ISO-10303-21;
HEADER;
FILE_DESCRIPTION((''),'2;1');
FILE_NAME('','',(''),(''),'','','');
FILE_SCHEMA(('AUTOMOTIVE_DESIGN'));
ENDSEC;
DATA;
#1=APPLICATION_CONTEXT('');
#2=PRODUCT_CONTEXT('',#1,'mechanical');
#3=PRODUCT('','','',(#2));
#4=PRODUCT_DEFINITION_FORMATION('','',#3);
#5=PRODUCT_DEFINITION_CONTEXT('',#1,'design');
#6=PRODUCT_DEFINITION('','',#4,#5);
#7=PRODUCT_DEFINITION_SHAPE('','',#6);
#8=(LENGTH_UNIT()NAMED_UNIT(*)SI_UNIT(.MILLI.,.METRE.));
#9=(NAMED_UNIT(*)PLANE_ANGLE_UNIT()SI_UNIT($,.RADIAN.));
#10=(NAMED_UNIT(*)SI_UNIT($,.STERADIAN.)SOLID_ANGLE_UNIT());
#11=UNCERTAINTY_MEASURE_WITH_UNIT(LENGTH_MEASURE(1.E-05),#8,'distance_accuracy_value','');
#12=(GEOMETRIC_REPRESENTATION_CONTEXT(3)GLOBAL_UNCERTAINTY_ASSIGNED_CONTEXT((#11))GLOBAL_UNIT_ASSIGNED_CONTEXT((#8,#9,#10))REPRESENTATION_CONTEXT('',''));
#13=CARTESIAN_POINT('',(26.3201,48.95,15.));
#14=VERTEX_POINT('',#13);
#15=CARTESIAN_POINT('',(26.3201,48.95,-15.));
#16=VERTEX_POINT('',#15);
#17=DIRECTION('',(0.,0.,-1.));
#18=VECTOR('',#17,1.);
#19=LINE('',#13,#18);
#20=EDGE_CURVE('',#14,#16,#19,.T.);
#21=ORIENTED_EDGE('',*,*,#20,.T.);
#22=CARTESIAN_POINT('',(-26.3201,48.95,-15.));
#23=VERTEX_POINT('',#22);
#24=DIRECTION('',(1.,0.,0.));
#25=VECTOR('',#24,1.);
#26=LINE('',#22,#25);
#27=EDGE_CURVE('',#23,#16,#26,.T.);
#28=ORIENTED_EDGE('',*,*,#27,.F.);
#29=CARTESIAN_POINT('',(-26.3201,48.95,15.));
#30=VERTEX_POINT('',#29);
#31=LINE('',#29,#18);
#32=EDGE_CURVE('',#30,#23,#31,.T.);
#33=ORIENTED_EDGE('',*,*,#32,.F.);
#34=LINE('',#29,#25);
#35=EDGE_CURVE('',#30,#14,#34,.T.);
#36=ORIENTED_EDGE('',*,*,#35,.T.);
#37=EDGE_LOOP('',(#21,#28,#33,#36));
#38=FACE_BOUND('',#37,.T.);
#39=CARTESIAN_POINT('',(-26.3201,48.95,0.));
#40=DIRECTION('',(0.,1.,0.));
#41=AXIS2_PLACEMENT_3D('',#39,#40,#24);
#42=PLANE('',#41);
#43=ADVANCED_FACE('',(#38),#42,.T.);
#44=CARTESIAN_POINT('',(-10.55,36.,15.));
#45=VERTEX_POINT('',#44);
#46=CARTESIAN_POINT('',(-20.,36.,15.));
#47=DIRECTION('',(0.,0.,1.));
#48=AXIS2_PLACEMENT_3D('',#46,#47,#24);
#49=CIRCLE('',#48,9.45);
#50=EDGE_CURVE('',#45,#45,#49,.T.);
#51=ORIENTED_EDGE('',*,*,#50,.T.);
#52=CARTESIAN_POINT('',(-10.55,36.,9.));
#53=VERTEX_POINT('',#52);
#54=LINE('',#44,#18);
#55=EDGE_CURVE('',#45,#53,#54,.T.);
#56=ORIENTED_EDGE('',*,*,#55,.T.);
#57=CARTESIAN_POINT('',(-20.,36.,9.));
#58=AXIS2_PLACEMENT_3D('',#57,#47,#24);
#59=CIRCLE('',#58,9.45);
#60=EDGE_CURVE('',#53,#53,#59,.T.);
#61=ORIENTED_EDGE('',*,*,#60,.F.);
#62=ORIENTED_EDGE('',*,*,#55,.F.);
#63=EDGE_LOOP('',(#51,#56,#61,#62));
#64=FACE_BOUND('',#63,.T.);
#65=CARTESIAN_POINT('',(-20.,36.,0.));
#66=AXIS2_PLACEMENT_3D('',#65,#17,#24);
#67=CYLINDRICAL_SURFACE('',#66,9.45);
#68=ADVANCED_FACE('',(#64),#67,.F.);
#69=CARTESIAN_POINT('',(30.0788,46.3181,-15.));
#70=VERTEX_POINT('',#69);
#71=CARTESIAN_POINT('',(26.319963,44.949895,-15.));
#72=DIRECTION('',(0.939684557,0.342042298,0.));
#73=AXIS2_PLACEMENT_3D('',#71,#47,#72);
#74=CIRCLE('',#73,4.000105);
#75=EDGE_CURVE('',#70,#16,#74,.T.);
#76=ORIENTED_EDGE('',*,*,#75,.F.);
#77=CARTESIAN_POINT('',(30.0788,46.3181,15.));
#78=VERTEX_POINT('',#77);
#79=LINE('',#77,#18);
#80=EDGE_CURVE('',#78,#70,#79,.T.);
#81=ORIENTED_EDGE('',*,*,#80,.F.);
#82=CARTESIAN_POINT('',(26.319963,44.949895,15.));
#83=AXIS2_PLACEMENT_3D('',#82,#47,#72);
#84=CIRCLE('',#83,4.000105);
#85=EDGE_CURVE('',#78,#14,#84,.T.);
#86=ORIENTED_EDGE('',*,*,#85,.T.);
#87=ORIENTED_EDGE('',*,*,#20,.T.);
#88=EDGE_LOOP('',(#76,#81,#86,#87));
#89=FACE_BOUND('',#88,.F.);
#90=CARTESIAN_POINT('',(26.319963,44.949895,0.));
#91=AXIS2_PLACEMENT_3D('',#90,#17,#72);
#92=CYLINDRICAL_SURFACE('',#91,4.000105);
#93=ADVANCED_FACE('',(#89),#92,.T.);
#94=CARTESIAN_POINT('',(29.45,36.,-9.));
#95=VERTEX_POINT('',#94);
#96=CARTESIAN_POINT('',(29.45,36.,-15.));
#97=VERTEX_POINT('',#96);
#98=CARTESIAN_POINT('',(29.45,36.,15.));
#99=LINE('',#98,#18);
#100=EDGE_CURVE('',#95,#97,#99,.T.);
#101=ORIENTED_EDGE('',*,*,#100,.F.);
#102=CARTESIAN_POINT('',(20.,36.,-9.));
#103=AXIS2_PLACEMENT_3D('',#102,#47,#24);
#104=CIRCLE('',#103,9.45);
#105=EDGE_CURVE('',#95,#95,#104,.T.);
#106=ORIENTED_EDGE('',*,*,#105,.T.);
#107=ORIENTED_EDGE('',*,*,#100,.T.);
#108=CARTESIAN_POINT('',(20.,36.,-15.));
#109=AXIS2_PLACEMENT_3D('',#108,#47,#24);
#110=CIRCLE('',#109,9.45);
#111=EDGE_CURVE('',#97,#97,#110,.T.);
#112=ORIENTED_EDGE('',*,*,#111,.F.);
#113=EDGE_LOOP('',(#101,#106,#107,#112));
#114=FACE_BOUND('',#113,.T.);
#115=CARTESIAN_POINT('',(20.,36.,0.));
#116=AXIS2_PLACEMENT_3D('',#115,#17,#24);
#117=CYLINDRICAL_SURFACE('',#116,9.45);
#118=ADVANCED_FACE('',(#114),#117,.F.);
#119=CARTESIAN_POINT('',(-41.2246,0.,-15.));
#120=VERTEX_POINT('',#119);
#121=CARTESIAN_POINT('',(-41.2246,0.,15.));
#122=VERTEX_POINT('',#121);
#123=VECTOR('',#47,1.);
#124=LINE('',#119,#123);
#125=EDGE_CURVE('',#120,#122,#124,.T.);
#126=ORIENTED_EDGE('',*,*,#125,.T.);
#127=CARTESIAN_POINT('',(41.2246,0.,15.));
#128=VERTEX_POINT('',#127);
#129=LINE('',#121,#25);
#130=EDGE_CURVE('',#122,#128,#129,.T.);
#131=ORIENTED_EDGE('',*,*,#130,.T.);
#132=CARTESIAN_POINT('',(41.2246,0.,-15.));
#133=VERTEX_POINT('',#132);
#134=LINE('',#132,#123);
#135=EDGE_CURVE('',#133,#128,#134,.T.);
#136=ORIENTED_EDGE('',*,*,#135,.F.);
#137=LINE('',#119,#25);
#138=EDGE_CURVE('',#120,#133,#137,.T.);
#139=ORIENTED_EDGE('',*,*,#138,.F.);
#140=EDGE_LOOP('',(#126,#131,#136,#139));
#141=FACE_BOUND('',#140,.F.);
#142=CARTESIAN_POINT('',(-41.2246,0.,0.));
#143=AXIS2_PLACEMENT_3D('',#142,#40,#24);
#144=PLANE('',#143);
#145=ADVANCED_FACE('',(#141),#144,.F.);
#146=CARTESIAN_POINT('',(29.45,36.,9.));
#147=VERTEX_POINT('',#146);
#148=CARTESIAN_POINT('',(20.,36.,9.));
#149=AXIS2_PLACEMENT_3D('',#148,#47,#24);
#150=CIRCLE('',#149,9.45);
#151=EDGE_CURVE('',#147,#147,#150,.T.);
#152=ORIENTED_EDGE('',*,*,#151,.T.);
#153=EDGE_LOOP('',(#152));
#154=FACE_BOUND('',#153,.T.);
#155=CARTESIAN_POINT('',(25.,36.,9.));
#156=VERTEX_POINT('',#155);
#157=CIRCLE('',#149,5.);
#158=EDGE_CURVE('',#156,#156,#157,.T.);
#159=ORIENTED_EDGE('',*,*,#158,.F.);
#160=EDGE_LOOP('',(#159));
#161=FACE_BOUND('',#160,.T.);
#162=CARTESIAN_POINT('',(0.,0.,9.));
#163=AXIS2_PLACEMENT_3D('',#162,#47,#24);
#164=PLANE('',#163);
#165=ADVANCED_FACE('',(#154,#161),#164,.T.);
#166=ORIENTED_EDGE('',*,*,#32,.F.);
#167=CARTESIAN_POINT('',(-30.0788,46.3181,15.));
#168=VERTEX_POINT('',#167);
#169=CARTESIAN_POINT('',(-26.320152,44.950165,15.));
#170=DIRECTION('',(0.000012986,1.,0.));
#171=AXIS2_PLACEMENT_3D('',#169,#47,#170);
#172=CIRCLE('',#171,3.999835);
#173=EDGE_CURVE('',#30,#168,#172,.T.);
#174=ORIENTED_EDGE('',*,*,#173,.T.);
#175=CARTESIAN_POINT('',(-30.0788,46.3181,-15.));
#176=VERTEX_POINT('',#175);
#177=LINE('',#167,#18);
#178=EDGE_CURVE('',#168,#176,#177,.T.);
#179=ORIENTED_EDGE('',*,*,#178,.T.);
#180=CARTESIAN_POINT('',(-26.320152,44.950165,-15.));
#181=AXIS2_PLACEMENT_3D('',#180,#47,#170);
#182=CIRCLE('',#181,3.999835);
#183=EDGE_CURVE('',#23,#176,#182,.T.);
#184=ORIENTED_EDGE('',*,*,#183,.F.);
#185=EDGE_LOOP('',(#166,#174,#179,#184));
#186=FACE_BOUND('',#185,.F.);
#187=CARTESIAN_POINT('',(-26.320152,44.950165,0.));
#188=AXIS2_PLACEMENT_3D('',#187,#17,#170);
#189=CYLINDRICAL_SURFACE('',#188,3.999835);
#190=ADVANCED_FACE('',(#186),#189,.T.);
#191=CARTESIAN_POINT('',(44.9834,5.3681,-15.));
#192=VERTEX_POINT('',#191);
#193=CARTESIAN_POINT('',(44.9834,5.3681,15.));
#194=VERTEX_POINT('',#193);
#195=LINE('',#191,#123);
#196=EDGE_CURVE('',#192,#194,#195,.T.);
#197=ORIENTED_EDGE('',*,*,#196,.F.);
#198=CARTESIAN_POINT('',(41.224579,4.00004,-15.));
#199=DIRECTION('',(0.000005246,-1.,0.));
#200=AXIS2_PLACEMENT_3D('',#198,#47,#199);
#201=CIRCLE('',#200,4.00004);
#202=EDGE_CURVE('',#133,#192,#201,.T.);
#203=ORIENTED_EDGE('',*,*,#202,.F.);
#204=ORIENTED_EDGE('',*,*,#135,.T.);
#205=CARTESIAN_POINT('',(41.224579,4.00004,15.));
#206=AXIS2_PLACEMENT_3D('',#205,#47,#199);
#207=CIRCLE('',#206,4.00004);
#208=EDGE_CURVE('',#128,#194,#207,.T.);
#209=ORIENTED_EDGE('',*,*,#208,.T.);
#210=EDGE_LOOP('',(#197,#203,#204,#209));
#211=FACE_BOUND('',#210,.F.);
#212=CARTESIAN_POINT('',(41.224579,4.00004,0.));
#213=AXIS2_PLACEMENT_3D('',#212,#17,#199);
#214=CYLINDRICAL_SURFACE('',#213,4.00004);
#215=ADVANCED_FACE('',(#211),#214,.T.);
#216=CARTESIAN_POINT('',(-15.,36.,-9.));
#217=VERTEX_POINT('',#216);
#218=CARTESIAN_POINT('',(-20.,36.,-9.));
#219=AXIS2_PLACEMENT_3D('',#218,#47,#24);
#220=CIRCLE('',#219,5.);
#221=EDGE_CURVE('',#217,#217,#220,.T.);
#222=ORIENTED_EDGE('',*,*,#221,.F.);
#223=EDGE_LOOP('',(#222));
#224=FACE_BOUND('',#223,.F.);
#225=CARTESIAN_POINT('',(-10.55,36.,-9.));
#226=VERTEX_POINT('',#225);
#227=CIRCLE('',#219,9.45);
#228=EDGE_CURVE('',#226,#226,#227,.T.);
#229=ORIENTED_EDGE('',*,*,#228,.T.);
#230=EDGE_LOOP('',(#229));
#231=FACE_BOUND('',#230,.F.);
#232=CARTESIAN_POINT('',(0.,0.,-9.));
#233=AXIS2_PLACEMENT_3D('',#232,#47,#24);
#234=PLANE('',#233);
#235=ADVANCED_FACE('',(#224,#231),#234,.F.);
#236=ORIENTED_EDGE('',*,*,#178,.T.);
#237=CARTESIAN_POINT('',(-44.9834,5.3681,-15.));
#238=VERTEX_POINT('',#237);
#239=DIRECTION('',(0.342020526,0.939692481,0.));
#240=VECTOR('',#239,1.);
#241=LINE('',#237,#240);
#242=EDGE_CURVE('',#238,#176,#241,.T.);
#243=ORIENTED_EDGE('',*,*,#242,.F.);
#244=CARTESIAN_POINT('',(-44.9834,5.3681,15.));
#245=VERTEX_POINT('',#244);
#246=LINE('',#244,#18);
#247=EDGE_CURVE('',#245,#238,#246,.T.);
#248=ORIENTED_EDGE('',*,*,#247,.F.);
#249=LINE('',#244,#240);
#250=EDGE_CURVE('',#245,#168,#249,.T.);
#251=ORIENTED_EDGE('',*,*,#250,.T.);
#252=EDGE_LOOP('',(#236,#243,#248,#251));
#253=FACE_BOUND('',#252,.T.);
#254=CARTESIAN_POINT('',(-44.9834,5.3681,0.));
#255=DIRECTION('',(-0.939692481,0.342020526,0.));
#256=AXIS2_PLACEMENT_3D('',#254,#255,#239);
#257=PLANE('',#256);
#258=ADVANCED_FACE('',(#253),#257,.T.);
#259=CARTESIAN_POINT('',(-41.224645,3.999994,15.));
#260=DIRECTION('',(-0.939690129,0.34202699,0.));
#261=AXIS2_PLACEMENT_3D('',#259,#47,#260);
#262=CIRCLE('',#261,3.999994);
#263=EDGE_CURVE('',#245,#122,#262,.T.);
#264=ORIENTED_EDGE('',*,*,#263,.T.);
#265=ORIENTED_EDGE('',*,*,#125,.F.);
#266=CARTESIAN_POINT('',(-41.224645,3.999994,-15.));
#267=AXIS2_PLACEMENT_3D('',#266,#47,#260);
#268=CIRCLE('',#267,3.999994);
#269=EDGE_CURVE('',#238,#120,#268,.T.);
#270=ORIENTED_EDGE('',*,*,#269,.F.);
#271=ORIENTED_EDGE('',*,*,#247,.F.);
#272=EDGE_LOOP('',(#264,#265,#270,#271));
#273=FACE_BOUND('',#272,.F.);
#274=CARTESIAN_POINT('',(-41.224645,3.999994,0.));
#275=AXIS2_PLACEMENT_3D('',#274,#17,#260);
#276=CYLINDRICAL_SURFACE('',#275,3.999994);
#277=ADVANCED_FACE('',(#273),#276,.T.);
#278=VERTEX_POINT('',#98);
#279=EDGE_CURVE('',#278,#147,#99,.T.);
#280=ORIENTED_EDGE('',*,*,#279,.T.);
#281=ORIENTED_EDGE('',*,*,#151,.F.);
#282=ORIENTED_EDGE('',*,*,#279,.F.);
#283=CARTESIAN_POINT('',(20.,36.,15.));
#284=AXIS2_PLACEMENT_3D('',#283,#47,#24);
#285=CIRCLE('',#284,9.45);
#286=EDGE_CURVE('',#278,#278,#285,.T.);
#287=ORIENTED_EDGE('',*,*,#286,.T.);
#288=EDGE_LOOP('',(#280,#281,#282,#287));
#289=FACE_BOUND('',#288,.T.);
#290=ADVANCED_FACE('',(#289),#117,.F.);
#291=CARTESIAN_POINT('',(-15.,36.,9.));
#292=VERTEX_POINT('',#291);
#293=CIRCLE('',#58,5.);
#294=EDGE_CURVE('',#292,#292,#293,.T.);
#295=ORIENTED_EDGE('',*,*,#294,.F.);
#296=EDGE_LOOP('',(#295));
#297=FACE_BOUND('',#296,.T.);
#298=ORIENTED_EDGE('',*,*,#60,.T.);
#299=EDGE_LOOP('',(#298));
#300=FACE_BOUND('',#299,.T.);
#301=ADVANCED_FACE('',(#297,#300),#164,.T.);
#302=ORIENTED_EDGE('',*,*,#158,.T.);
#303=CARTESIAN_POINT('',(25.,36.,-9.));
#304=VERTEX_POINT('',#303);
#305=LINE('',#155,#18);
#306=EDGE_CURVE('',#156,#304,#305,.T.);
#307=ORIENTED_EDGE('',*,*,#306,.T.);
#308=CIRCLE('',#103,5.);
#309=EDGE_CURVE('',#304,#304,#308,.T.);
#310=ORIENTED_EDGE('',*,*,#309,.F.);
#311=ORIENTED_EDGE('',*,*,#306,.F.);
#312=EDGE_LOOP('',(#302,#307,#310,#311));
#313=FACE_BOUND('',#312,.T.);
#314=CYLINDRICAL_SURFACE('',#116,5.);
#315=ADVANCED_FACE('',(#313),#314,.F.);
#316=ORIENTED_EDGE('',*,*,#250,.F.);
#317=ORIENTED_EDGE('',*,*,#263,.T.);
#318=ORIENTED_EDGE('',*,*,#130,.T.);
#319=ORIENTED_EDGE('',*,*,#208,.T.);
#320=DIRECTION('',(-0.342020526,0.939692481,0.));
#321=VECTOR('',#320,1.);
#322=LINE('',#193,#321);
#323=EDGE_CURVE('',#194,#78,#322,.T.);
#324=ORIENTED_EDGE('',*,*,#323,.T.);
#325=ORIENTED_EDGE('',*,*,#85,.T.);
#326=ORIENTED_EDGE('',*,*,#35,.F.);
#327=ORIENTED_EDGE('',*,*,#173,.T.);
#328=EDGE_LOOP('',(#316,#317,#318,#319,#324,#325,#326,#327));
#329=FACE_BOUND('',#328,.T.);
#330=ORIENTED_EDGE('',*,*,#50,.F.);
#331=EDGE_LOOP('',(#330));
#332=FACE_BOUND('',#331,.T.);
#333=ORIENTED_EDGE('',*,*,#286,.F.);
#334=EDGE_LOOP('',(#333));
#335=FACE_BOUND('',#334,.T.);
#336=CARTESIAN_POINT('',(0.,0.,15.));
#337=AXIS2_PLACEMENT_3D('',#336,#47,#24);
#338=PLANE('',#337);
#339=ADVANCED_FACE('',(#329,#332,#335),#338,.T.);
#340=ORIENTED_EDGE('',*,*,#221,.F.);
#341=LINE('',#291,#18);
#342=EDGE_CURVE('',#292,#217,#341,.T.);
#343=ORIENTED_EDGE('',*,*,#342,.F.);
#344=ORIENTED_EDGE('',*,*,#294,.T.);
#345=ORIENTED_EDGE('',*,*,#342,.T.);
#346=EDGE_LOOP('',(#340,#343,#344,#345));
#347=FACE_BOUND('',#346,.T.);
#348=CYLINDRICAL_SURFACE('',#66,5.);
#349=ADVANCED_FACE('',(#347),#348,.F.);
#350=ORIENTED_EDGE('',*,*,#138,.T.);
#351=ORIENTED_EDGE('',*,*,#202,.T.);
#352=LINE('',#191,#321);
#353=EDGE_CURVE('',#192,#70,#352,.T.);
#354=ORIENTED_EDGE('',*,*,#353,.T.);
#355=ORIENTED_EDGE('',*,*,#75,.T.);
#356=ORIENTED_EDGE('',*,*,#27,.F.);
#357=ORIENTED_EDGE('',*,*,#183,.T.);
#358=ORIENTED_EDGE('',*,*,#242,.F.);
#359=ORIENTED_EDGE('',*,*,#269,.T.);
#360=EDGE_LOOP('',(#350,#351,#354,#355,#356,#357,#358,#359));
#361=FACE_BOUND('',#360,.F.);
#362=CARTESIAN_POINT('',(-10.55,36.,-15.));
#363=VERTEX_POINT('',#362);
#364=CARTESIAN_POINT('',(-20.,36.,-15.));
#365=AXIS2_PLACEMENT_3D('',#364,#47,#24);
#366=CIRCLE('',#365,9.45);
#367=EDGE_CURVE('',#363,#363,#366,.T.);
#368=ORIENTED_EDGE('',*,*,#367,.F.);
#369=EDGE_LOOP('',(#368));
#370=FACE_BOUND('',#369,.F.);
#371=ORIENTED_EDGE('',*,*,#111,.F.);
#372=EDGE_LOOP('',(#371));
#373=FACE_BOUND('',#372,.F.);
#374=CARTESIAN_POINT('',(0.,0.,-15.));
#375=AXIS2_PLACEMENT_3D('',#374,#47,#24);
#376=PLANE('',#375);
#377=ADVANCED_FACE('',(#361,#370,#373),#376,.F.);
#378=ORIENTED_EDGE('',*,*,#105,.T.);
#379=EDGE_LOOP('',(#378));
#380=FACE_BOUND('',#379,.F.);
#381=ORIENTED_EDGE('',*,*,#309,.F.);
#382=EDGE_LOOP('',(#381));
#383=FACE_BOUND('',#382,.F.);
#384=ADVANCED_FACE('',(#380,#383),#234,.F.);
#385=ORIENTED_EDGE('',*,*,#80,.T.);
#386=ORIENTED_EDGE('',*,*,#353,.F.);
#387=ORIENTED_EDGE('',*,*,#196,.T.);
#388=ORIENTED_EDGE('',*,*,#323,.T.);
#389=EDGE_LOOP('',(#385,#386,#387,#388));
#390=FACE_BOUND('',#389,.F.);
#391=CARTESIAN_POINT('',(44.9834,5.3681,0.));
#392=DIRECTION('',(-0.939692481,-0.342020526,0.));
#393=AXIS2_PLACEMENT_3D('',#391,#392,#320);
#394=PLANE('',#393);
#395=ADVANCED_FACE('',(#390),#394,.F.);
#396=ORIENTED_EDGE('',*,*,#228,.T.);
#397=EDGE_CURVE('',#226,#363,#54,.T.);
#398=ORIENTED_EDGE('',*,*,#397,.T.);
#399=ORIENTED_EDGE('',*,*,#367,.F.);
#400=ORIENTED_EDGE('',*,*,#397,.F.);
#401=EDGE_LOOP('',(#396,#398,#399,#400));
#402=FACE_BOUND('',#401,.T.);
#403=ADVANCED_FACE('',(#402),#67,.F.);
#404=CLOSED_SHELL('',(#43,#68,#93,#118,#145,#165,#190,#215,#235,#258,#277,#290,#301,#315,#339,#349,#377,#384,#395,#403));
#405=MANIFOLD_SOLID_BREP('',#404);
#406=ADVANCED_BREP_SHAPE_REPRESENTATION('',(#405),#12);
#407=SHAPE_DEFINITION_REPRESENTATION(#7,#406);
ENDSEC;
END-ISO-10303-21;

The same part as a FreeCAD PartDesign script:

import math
import FreeCAD as App
import Part
import Sketcher
from FreeCAD import Vector
Q = App.Units.Quantity

doc = App.newDocument("Part")
params = doc.addObject("Spreadsheet::Sheet", "Params")
for row, (alias, value) in enumerate([
    ("sketch1_radius", "4 mm"),
    ("sketch1_diameter", "18.9 mm"),
    ("pad1_length", "30 mm"),
    ("sketch2_diameter", "10 mm"),
    ("sketch2_diameter2", "18.9 mm"),
    ("pad2_length", "18 mm"),
], start=1):
    params.set(f"A{row}", alias)
    params.set(f"B{row}", "=" + value)
    params.setAlias(f"B{row}", alias)

body = doc.addObject("PartDesign::Body", "Body")

# Sketch on XY plane
sketch1 = doc.addObject("Sketcher::SketchObject", "Sketch")
body.addObject(sketch1)
sketch1.AttachmentSupport = (doc.XY_Plane, [""])
sketch1.MapMode = "FlatFace"
sketch1.addGeometry([
    Part.ArcOfCircle(Part.Circle(Vector(-41.2, 4, 0), Vector(0, 0, 1), 4), math.radians(160), math.radians(270)),  # 0
    Part.LineSegment(Vector(-41.2, 0, 0), Vector(41.2, 0, 0)),  # 1
    Part.ArcOfCircle(Part.Circle(Vector(41.2, 4, 0), Vector(0, 0, 1), 4), math.radians(-90), math.radians(20)),  # 2
    Part.LineSegment(Vector(45, 5.4, 0), Vector(30.1, 46.3, 0)),  # 3
    Part.ArcOfCircle(Part.Circle(Vector(26.3, 45, 0), Vector(0, 0, 1), 4), math.radians(20), math.radians(90)),  # 4
    Part.LineSegment(Vector(26.3, 49, 0), Vector(-26.3, 49, 0)),  # 5
    Part.ArcOfCircle(Part.Circle(Vector(-26.3, 45, 0), Vector(0, 0, 1), 4), math.radians(90), math.radians(160)),  # 6
    Part.LineSegment(Vector(-30.1, 46.3, 0), Vector(-45, 5.4, 0)),  # 7
    Part.Circle(Vector(-20, 36, 0), Vector(0, 0, 1), 9.4),  # 8
    Part.Circle(Vector(20, 36, 0), Vector(0, 0, 1), 9.4),  # 9
], False)
sketch1.addConstraint([
    Sketcher.Constraint("Tangent", 0, 2, 1, 1),
    Sketcher.Constraint("Tangent", 1, 2, 2, 1),
    Sketcher.Constraint("Tangent", 2, 2, 3, 1),
    Sketcher.Constraint("Tangent", 3, 2, 4, 1),
    Sketcher.Constraint("Tangent", 4, 2, 5, 1),
    Sketcher.Constraint("Tangent", 5, 2, 6, 1),
    Sketcher.Constraint("Tangent", 6, 2, 7, 1),
    Sketcher.Constraint("Tangent", 7, 2, 0, 1),
    Sketcher.Constraint("Horizontal", 1),
    Sketcher.Constraint("Horizontal", 5),
    Sketcher.Constraint("Equal", 0, 2),
    Sketcher.Constraint("Equal", 2, 4),
    Sketcher.Constraint("Equal", 4, 6),
    Sketcher.Constraint("Equal", 8, 9),
    Sketcher.Constraint("Symmetric", 0, 2, 1, 2, -1, 1),
    Sketcher.Constraint("Symmetric", 8, 3, 9, 3, -2),
    Sketcher.Constraint("Horizontal", 3, 2, 6, 2),
    Sketcher.Constraint("Radius", 0, Q("4 mm")),
    Sketcher.Constraint("Diameter", 8, Q("18.9 mm")),
    Sketcher.Constraint("DistanceY", -1, 1, 8, 3, Q("36 mm")),
    Sketcher.Constraint("DistanceX", 8, 3, 9, 3, Q("40 mm")),
    Sketcher.Constraint("Angle", 3, Q("110 deg")),
    Sketcher.Constraint("DistanceX", -1, 1, 4, 3, Q("26.32 mm")),
    Sketcher.Constraint("DistanceY", -1, 1, 4, 3, Q("44.95 mm")),
])
sketch1.setExpression("Constraints[17]", "Params.sketch1_radius")
sketch1.setExpression("Constraints[18]", "Params.sketch1_diameter")
pad1 = doc.addObject("PartDesign::Pad", "Pad")
body.addObject(pad1)
pad1.Profile = sketch1
pad1.setExpression("Length", "Params.pad1_length")
pad1.Midplane = True

# Sketch on XY plane
sketch2 = doc.addObject("Sketcher::SketchObject", "Sketch001")
body.addObject(sketch2)
sketch2.AttachmentSupport = (doc.XY_Plane, [""])
sketch2.MapMode = "FlatFace"
sketch2.addGeometry([
    Part.Circle(Vector(-20, 36, 0), Vector(0, 0, 1), 9),
    Part.Circle(Vector(-20, 36, 0), Vector(0, 0, 1), 5),
    Part.Circle(Vector(20, 36, 0), Vector(0, 0, 1), 9),
    Part.Circle(Vector(20, 36, 0), Vector(0, 0, 1), 5),
], False)
sketch2.addConstraint([
    Sketcher.Constraint("Coincident", 1, 3, 0, 3),
    Sketcher.Constraint("Coincident", 3, 3, 2, 3),
    Sketcher.Constraint("Equal", 0, 2),
    Sketcher.Constraint("Equal", 1, 3),
    Sketcher.Constraint("Symmetric", 0, 3, 2, 3, -2),
    Sketcher.Constraint("Diameter", 1, Q("10 mm")),
    Sketcher.Constraint("Diameter", 0, Q("18.9 mm")),
    Sketcher.Constraint("DistanceY", -1, 1, 0, 3, Q("36 mm")),
    Sketcher.Constraint("DistanceX", 0, 3, 2, 3, Q("40 mm")),
])
sketch2.setExpression("Constraints[5]", "Params.sketch2_diameter")
sketch2.setExpression("Constraints[6]", "Params.sketch2_diameter2")
pad2 = doc.addObject("PartDesign::Pad", "Pad001")
body.addObject(pad2)
pad2.Profile = sketch2
pad2.setExpression("Length", "Params.pad2_length")
pad2.Midplane = True

doc.recompute()
